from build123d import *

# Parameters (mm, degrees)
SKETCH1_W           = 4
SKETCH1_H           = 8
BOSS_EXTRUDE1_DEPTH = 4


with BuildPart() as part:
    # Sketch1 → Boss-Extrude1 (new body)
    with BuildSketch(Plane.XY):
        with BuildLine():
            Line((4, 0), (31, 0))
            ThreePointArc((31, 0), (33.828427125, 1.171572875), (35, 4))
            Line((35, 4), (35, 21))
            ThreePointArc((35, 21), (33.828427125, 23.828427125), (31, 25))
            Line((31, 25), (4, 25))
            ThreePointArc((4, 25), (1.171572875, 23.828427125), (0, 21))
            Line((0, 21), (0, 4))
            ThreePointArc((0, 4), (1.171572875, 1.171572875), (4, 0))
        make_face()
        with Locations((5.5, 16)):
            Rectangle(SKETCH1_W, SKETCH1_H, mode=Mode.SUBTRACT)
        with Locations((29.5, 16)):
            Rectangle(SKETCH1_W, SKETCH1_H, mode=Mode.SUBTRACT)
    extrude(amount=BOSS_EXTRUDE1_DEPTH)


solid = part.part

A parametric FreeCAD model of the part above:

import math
import FreeCAD as App
import Part
import Sketcher

V = App.Vector

doc = App.newDocument("Part")
body = doc.addObject("PartDesign::Body", "Body")

# Sketch on XY plane
sketch1 = body.newObject("Sketcher::SketchObject", "Sketch")
sketch1.AttachmentSupport = (doc.getObject("XY_Plane"), [""])
sketch1.MapMode = "FlatFace"
sketch1.addGeometry(Part.LineSegment(V(4, 0, 0), V(31, 0, 0)), False)
sketch1.addGeometry(Part.ArcOfCircle(Part.Circle(V(31, 4, 0), V(0, 0, 1), 4), math.radians(-90), math.radians(0)), False)
sketch1.addGeometry(Part.LineSegment(V(35, 4, 0), V(35, 21, 0)), False)
sketch1.addGeometry(Part.ArcOfCircle(Part.Circle(V(31, 21, 0), V(0, 0, 1), 4), math.radians(0), math.radians(90)), False)
sketch1.addGeometry(Part.LineSegment(V(31, 25, 0), V(4, 25, 0)), False)
sketch1.addGeometry(Part.ArcOfCircle(Part.Circle(V(4, 21, 0), V(0, 0, 1), 4), math.radians(90), math.radians(180)), False)
sketch1.addGeometry(Part.LineSegment(V(0, 21, 0), V(0, 4, 0)), False)
sketch1.addGeometry(Part.ArcOfCircle(Part.Circle(V(4, 4, 0), V(0, 0, 1), 4), math.radians(180), math.radians(270)), False)
sketch1.addGeometry(Part.LineSegment(V(7.5, 12, 0), V(3.5, 12, 0)), False)
sketch1.addGeometry(Part.LineSegment(V(3.5, 12, 0), V(3.5, 20, 0)), False)
sketch1.addGeometry(Part.LineSegment(V(3.5, 20, 0), V(7.5, 20, 0)), False)
sketch1.addGeometry(Part.LineSegment(V(7.5, 20, 0), V(7.5, 12, 0)), False)
sketch1.addGeometry(Part.LineSegment(V(31.5, 12, 0), V(27.5, 12, 0)), False)
sketch1.addGeometry(Part.LineSegment(V(27.5, 12, 0), V(27.5, 20, 0)), False)
sketch1.addGeometry(Part.LineSegment(V(27.5, 20, 0), V(31.5, 20, 0)), False)
sketch1.addGeometry(Part.LineSegment(V(31.5, 20, 0), V(31.5, 12, 0)), False)
sketch1.addConstraint(Sketcher.Constraint("Tangent", 0, 2, 1, 1))
sketch1.addConstraint(Sketcher.Constraint("Tangent", 1, 2, 2, 1))
sketch1.addConstraint(Sketcher.Constraint("Tangent", 2, 2, 3, 1))
sketch1.addConstraint(Sketcher.Constraint("Tangent", 3, 2, 4, 1))
sketch1.addConstraint(Sketcher.Constraint("Tangent", 4, 2, 5, 1))
sketch1.addConstraint(Sketcher.Constraint("Tangent", 5, 2, 6, 1))
sketch1.addConstraint(Sketcher.Constraint("Tangent", 6, 2, 7, 1))
sketch1.addConstraint(Sketcher.Constraint("Tangent", 7, 2, 0, 1))
sketch1.addConstraint(Sketcher.Constraint("Coincident", 8, 2, 9, 1))
sketch1.addConstraint(Sketcher.Constraint("Coincident", 9, 2, 10, 1))
sketch1.addConstraint(Sketcher.Constraint("Coincident", 10, 2, 11, 1))
sketch1.addConstraint(Sketcher.Constraint("Coincident", 11, 2, 8, 1))
sketch1.addConstraint(Sketcher.Constraint("Coincident", 12, 2, 13, 1))
sketch1.addConstraint(Sketcher.Constraint("Coincident", 13, 2, 14, 1))
sketch1.addConstraint(Sketcher.Constraint("Coincident", 14, 2, 15, 1))
sketch1.addConstraint(Sketcher.Constraint("Coincident", 15, 2, 12, 1))
sketch1.addConstraint(Sketcher.Constraint("Horizontal", 0))
sketch1.addConstraint(Sketcher.Constraint("Vertical", 2))
sketch1.addConstraint(Sketcher.Constraint("Horizontal", 4))
sketch1.addConstraint(Sketcher.Constraint("Vertical", 6))
sketch1.addConstraint(Sketcher.Constraint("Horizontal", 8))
sketch1.addConstraint(Sketcher.Constraint("Vertical", 9))
sketch1.addConstraint(Sketcher.Constraint("Horizontal", 10))
sketch1.addConstraint(Sketcher.Constraint("Vertical", 11))
sketch1.addConstraint(Sketcher.Constraint("Horizontal", 12))
sketch1.addConstraint(Sketcher.Constraint("Vertical", 13))
sketch1.addConstraint(Sketcher.Constraint("Horizontal", 14))
sketch1.addConstraint(Sketcher.Constraint("Vertical", 15))
sketch1.addConstraint(Sketcher.Constraint("Equal", 1, 3))
sketch1.addConstraint(Sketcher.Constraint("Equal", 3, 5))
sketch1.addConstraint(Sketcher.Constraint("Equal", 5, 7))
sketch1.addConstraint(Sketcher.Constraint("PointOnObject", 0, 2, -1))
sketch1.addConstraint(Sketcher.Constraint("PointOnObject", 5, 2, -2))
sketch1.addConstraint(Sketcher.Constraint("Horizontal", 11, 2, 12, 2))
sketch1.addConstraint(Sketcher.Constraint("Horizontal", 10, 2, 13, 2))
sketch1.addConstraint(Sketcher.Constraint("Equal", 10, 12))
sketch1.addConstraint(Sketcher.Constraint("Radius", 1, 4.0))
sketch1.addConstraint(Sketcher.Constraint("DistanceX", 0, 1, 0, 2, 27.0))
sketch1.addConstraint(Sketcher.Constraint("DistanceX", 8, 2, 8, 1, 4.0))
sketch1.addConstraint(Sketcher.Constraint("DistanceY", 2, 1, 2, 2, 17.0))
sketch1.addConstraint(Sketcher.Constraint("DistanceY", 9, 1, 9, 2, 8.0))
sketch1.addConstraint(Sketcher.Constraint("DistanceY", -1, 1, 8, 2, 12.0))
sketch1.addConstraint(Sketcher.Constraint("DistanceX", -1, 1, 8, 2, 3.5))
sketch1.addConstraint(Sketcher.Constraint("DistanceX", -1, 1, 12, 2, 27.5))
pad1 = body.newObject("PartDesign::Pad", "Pad")
pad1.Profile = sketch1
pad1.Length = 4

doc.recompute()
